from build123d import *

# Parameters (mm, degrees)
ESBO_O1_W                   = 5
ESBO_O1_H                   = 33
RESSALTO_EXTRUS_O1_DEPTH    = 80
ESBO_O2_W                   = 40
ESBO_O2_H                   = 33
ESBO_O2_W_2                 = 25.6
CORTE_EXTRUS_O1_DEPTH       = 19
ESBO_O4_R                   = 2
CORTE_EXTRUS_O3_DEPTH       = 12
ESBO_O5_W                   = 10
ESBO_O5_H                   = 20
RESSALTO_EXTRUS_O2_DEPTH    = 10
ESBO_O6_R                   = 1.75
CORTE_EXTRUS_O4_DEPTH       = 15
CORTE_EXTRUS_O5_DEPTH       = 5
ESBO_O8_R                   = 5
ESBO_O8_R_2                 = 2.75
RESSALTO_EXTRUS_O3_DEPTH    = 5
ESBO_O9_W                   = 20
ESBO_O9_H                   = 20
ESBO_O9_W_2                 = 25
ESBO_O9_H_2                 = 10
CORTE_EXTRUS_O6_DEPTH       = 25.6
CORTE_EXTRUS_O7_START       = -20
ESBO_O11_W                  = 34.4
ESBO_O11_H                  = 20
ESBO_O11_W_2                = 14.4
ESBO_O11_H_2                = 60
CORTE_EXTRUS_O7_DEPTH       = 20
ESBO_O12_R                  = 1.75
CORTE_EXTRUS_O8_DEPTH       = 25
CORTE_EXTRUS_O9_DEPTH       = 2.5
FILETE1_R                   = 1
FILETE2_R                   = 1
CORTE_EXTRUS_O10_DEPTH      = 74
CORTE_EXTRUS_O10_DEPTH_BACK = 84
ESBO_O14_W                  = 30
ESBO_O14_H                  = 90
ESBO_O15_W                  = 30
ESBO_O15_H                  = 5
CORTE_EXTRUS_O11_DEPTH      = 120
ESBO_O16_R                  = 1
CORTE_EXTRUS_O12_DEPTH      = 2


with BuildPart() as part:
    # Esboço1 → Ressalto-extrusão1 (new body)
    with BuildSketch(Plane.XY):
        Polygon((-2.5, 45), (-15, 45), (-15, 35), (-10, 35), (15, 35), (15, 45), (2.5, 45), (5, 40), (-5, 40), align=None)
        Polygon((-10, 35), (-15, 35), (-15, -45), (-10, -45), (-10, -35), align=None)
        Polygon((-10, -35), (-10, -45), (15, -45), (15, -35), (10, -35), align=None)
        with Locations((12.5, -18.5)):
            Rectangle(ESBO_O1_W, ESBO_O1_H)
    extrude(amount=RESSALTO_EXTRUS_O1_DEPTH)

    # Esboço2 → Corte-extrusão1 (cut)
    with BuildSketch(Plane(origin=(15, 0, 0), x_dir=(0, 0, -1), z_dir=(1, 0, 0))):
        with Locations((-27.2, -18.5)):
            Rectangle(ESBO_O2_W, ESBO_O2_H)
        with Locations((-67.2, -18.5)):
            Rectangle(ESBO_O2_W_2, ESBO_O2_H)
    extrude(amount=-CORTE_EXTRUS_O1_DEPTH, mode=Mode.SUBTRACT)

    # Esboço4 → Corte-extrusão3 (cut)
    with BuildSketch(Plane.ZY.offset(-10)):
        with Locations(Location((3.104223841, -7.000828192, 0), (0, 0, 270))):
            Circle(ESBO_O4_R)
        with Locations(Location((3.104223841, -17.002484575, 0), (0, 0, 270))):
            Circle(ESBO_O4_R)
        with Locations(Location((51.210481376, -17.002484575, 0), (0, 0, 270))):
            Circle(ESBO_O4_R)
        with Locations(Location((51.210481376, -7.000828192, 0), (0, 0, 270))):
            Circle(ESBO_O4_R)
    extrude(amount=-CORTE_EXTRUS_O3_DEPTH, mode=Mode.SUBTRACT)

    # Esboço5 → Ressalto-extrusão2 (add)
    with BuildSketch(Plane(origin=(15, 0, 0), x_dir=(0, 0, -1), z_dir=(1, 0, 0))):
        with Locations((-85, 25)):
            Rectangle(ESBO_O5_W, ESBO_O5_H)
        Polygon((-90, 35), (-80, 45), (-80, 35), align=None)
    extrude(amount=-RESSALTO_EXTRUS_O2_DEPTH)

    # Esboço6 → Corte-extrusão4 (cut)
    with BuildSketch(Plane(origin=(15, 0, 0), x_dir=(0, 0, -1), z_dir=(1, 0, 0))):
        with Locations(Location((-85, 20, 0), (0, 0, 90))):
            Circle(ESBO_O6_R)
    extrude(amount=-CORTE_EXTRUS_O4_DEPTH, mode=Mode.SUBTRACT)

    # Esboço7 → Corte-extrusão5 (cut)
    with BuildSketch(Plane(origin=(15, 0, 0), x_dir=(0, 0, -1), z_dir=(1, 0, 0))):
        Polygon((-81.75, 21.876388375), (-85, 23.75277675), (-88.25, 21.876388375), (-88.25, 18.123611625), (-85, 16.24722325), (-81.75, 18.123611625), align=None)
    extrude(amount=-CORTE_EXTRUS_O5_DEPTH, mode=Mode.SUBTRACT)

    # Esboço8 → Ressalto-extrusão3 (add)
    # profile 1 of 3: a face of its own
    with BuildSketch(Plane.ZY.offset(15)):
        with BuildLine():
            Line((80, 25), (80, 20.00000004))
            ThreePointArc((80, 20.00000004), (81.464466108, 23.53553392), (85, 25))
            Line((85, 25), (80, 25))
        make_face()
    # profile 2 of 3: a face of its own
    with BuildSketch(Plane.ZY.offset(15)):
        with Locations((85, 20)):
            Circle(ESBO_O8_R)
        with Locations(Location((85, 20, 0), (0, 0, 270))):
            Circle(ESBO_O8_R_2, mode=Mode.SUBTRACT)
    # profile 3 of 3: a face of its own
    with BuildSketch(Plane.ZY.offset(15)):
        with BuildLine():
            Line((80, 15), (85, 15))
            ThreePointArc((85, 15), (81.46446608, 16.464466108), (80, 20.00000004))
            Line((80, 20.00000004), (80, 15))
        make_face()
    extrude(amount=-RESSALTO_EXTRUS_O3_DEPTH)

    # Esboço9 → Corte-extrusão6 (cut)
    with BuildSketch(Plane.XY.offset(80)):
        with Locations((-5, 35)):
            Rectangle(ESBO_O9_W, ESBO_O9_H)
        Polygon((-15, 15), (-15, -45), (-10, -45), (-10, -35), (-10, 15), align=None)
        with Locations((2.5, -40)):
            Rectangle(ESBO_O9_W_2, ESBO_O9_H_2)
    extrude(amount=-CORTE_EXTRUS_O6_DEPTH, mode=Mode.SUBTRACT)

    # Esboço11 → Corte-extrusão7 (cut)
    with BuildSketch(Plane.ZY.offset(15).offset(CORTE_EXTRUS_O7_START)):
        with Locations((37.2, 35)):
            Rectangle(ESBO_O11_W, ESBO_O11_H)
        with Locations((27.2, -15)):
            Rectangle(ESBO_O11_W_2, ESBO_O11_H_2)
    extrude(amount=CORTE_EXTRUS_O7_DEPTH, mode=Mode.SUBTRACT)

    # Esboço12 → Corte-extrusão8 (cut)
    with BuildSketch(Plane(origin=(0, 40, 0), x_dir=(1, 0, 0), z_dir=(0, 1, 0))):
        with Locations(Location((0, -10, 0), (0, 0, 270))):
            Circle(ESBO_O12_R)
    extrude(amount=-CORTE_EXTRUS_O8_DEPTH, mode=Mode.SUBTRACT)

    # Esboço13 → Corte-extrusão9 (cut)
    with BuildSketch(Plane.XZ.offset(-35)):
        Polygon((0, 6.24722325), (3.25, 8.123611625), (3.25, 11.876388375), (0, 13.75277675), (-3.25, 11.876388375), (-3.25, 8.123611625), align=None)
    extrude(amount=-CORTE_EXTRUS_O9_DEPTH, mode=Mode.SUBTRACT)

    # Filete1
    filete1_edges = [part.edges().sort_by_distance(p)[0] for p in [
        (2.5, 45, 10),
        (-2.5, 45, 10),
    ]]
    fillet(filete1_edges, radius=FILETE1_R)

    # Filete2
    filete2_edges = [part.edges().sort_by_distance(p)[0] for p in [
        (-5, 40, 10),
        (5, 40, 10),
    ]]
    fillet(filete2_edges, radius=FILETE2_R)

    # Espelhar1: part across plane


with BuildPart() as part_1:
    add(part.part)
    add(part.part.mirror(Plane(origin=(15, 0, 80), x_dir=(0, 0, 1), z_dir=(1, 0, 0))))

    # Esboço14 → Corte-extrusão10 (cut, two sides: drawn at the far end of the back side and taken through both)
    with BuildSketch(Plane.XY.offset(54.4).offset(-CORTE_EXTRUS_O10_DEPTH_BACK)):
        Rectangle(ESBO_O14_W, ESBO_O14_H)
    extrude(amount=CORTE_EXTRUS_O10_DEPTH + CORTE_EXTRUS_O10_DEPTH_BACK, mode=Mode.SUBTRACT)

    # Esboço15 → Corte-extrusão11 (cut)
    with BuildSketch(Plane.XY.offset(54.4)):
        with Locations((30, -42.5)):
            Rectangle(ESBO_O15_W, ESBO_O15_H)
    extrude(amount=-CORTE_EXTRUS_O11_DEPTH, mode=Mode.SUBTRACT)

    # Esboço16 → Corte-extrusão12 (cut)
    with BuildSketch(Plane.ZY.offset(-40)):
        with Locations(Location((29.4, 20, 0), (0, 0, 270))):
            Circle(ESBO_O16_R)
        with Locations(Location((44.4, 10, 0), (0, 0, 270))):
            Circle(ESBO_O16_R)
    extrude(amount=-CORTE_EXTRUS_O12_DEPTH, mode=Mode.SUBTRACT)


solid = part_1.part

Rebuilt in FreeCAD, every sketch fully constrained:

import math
import FreeCAD as App
import Part
import Sketcher
from FreeCAD import Vector
Q = App.Units.Quantity


def edges_at(feature, points):
    """Names of the edges that pass closest to the given points."""
    edges = feature.Shape.Edges
    near = lambda p: min(range(len(edges)), key=lambda i: edges[i].distToShape(Part.Vertex(*p))[0])
    return sorted({f"Edge{near(p) + 1}" for p in points})

doc = App.newDocument("Part")
params = doc.addObject("Spreadsheet::Sheet", "Params")
for row, (alias, value) in enumerate([
    ("sketch1_width", "30 mm"),
    ("sketch1_width2", "5 mm"),
    ("sketch1_width3", "10 mm"),
    ("sketch1_height", "90 mm"),
    ("sketch1_height2", "43 mm"),
    ("pad1_length", "80 mm"),
    ("sketch2_width", "33 mm"),
    ("sketch2_height", "40 mm"),
    ("sketch2_height2", "25.6 mm"),
    ("pocket1_length", "19 mm"),
    ("sketch3_diameter", "4 mm"),
    ("pocket2_length", "12 mm"),
    ("sketch4_width", "20 mm"),
    ("sketch4_width2", "30 mm"),
    ("sketch4_height", "10 mm"),
    ("pad2_length", "10 mm"),
    ("sketch5_diameter", "3.5 mm"),
    ("pocket3_length", "15 mm"),
    ("pocket4_length", "5 mm"),
    ("sketch7_radius", "5 mm"),
    ("sketch7_diameter", "5.5 mm"),
    ("sketch7_height", "5 mm"),
    ("pad3_length", "5 mm"),
    ("sketch8_width", "20 mm"),
    ("sketch8_width2", "30 mm"),
    ("sketch8_width3", "25 mm"),
    ("sketch8_height", "60 mm"),
    ("sketch8_height2", "10 mm"),
    ("pocket5_length", "25.6 mm"),
    ("sketch9_width", "20 mm"),
    ("sketch9_width2", "60 mm"),
    ("sketch9_height", "34.4 mm"),
    ("sketch9_height2", "14.4 mm"),
    ("pocket6_length", "20 mm"),
    ("sketch10_diameter", "3.5 mm"),
    ("pocket7_length", "25 mm"),
    ("pocket8_length", "2.5 mm"),
    ("fillet_radius", "1 mm"),
    ("fillet2_radius", "1 mm"),
    ("sketch12_width", "30 mm"),
    ("sketch12_height", "90 mm"),
    ("sketch13_width", "30 mm"),
    ("sketch13_height", "5 mm"),
    ("pocket10_length", "120 mm"),
    ("sketch14_diameter", "2 mm"),
    ("pocket11_length", "2 mm"),
], start=1):
    params.set(f"A{row}", alias)
    params.set(f"B{row}", "=" + value)
    params.setAlias(f"B{row}", alias)

body = doc.addObject("PartDesign::Body", "Body")

sketch1 = body.newObject("Sketcher::SketchObject", "Sketch")
sketch1.AttachmentSupport = (doc.getObject("XY_Plane"), [""])
sketch1.MapMode = "FlatFace"
sketch1.addGeometry(Part.LineSegment(Vector(-2, 45, 0), Vector(-15, 45, 0)), False)
sketch1.addGeometry(Part.LineSegment(Vector(-15, 45, 0), Vector(-15, -45, 0)), False)
sketch1.addGeometry(Part.LineSegment(Vector(-15, -45, 0), Vector(15, -45, 0)), False)
sketch1.addGeometry(Part.LineSegment(Vector(15, -45, 0), Vector(15, -2, 0)), False)
sketch1.addGeometry(Part.LineSegment(Vector(15, -2, 0), Vector(10, -2, 0)), False)
sketch1.addGeometry(Part.LineSegment(Vector(10, -2, 0), Vector(10, -35, 0)), False)
sketch1.addGeometry(Part.LineSegment(Vector(10, -35, 0), Vector(-10, -35, 0)), False)
sketch1.addGeometry(Part.LineSegment(Vector(-10, -35, 0), Vector(-10, 35, 0)), False)
sketch1.addGeometry(Part.LineSegment(Vector(-10, 35, 0), Vector(15, 35, 0)), False)
sketch1.addGeometry(Part.LineSegment(Vector(15, 35, 0), Vector(15, 45, 0)), False)
sketch1.addGeometry(Part.LineSegment(Vector(15, 45, 0), Vector(2, 45, 0)), False)
sketch1.addGeometry(Part.LineSegment(Vector(2, 45, 0), Vector(5, 40, 0)), False)
sketch1.addGeometry(Part.LineSegment(Vector(5, 40, 0), Vector(-5, 40, 0)), False)
sketch1.addGeometry(Part.LineSegment(Vector(-5, 40, 0), Vector(-2, 45, 0)), False)
sketch1.addConstraint(Sketcher.Constraint("Coincident", 0, 2, 1, 1))
sketch1.addConstraint(Sketcher.Constraint("Coincident", 1, 2, 2, 1))
sketch1.addConstraint(Sketcher.Constraint("Coincident", 2, 2, 3, 1))
sketch1.addConstraint(Sketcher.Constraint("Coincident", 3, 2, 4, 1))
sketch1.addConstraint(Sketcher.Constraint("Coincident", 4, 2, 5, 1))
sketch1.addConstraint(Sketcher.Constraint("Coincident", 5, 2, 6, 1))
sketch1.addConstraint(Sketcher.Constraint("Coincident", 6, 2, 7, 1))
sketch1.addConstraint(Sketcher.Constraint("Coincident", 7, 2, 8, 1))
sketch1.addConstraint(Sketcher.Constraint("Coincident", 8, 2, 9, 1))
sketch1.addConstraint(Sketcher.Constraint("Coincident", 9, 2, 10, 1))
sketch1.addConstraint(Sketcher.Constraint("Coincident", 10, 2, 11, 1))
sketch1.addConstraint(Sketcher.Constraint("Coincident", 11, 2, 12, 1))
sketch1.addConstraint(Sketcher.Constraint("Coincident", 12, 2, 13, 1))
sketch1.addConstraint(Sketcher.Constraint("Coincident", 13, 2, 0, 1))
sketch1.addConstraint(Sketcher.Constraint("Horizontal", 0))
sketch1.addConstraint(Sketcher.Constraint("Vertical", 1))
sketch1.addConstraint(Sketcher.Constraint("Horizontal", 2))
sketch1.addConstraint(Sketcher.Constraint("Vertical", 3))
sketch1.addConstraint(Sketcher.Constraint("Horizontal", 4))
sketch1.addConstraint(Sketcher.Constraint("Vertical", 5))
sketch1.addConstraint(Sketcher.Constraint("Horizontal", 6))
sketch1.addConstraint(Sketcher.Constraint("Vertical", 7))
sketch1.addConstraint(Sketcher.Constraint("Horizontal", 8))
sketch1.addConstraint(Sketcher.Constraint("Vertical", 9))
sketch1.addConstraint(Sketcher.Constraint("Horizontal", 10))
sketch1.addConstraint(Sketcher.Constraint("Horizontal", 12))
sketch1.addConstraint(Sketcher.Constraint("Symmetric", 0, 2, 2, 2, -1, 1))
sketch1.addConstraint(Sketcher.Constraint("Symmetric", 5, 2, 7, 2, -1, 1))
sketch1.addConstraint(Sketcher.Constraint("Symmetric", 1, 2, 9, 2, -1, 1))
sketch1.addConstraint(Sketcher.Constraint("Equal", 0, 10))
sketch1.addConstraint(Sketcher.Constraint("Equal", 12, 9))
sketch1.addConstraint(Sketcher.Constraint("Equal", 11, 13))
sketch1.addConstraint(Sketcher.Constraint("DistanceX", 2, 1, 2, 2, Q("30 mm")))
sketch1.addConstraint(Sketcher.Constraint("DistanceX", 4, 2, 4, 1, Q("5 mm")))
sketch1.addConstraint(Sketcher.Constraint("DistanceX", 12, 2, 12, 1, Q("10 mm")))
sketch1.addConstraint(Sketcher.Constraint("DistanceY", 1, 2, 1, 1, Q("90 mm")))
sketch1.addConstraint(Sketcher.Constraint("DistanceY", 3, 1, 3, 2, Q("43 mm")))
sketch1.addConstraint(Sketcher.Constraint("DistanceX", 0, 2, 0, 1, Q("12.5 mm")))
sketch1.addConstraint(Sketcher.Constraint("DistanceY", -1, 1, 11, 2, Q("40 mm")))
sketch1.setExpression("Constraints[32]", "Params.sketch1_width")
sketch1.setExpression("Constraints[33]", "Params.sketch1_width2")
sketch1.setExpression("Constraints[34]", "Params.sketch1_width3")
sketch1.setExpression("Constraints[35]", "Params.sketch1_height")
sketch1.setExpression("Constraints[36]", "Params.sketch1_height2")
pad1 = body.newObject("PartDesign::Pad", "Pad")
pad1.Profile = sketch1
pad1.setExpression("Length", "Params.pad1_length")

sketch2 = body.newObject("Sketcher::SketchObject", "Sketch001")
sketch2.AttachmentSupport = (doc.getObject("YZ_Plane"), [""])
sketch2.MapMode = "FlatFace"
sketch2.AttachmentOffset = App.Placement(Vector(0, 0, 15), App.Rotation())
sketch2.addGeometry(Part.LineSegment(Vector(-2, 47, 0), Vector(-35, 47, 0)), False)
sketch2.addGeometry(Part.LineSegment(Vector(-35, 47, 0), Vector(-35, 7, 0)), False)
sketch2.addGeometry(Part.LineSegment(Vector(-35, 7, 0), Vector(-2, 7, 0)), False)
sketch2.addGeometry(Part.LineSegment(Vector(-2, 7, 0), Vector(-2, 47, 0)), False)
sketch2.addGeometry(Part.LineSegment(Vector(-2, 80, 0), Vector(-35, 80, 0)), False)
sketch2.addGeometry(Part.LineSegment(Vector(-35, 80, 0), Vector(-35, 54, 0)), False)
sketch2.addGeometry(Part.LineSegment(Vector(-35, 54, 0), Vector(-2, 54, 0)), False)
sketch2.addGeometry(Part.LineSegment(Vector(-2, 54, 0), Vector(-2, 80, 0)), False)
sketch2.addConstraint(Sketcher.Constraint("Coincident", 0, 2, 1, 1))
sketch2.addConstraint(Sketcher.Constraint("Coincident", 1, 2, 2, 1))
sketch2.addConstraint(Sketcher.Constraint("Coincident", 2, 2, 3, 1))
sketch2.addConstraint(Sketcher.Constraint("Coincident", 3, 2, 0, 1))
sketch2.addConstraint(Sketcher.Constraint("Coincident", 4, 2, 5, 1))
sketch2.addConstraint(Sketcher.Constraint("Coincident", 5, 2, 6, 1))
sketch2.addConstraint(Sketcher.Constraint("Coincident", 6, 2, 7, 1))
sketch2.addConstraint(Sketcher.Constraint("Coincident", 7, 2, 4, 1))
sketch2.addConstraint(Sketcher.Constraint("Horizontal", 0))
sketch2.addConstraint(Sketcher.Constraint("Vertical", 1))
sketch2.addConstraint(Sketcher.Constraint("Horizontal", 2))
sketch2.addConstraint(Sketcher.Constraint("Vertical", 3))
sketch2.addConstraint(Sketcher.Constraint("Horizontal", 4))
sketch2.addConstraint(Sketcher.Constraint("Vertical", 5))
sketch2.addConstraint(Sketcher.Constraint("Horizontal", 6))
sketch2.addConstraint(Sketcher.Constraint("Vertical", 7))
sketch2.addConstraint(Sketcher.Constraint("Vertical", 1, 2, 4, 2))
sketch2.addConstraint(Sketcher.Constraint("Vertical", 3, 2, 6, 2))
sketch2.addConstraint(Sketcher.Constraint("DistanceX", 0, 2, 0, 1, Q("33 mm")))
sketch2.addConstraint(Sketcher.Constraint("DistanceY", 1, 2, 1, 1, Q("40 mm")))
sketch2.addConstraint(Sketcher.Constraint("DistanceY", 5, 2, 5, 1, Q("25.6 mm")))
sketch2.addConstraint(Sketcher.Constraint("DistanceX", 0, 2, -1, 1, Q("35 mm")))
sketch2.addConstraint(Sketcher.Constraint("DistanceY", -1, 1, 4, 2, Q("80 mm")))
sketch2.addConstraint(Sketcher.Constraint("DistanceY", -1, 1, 0, 2, Q("47.2 mm")))
sketch2.setExpression("Constraints[18]", "Params.sketch2_width")
sketch2.setExpression("Constraints[19]", "Params.sketch2_height")
sketch2.setExpression("Constraints[20]", "Params.sketch2_height2")
pocket1 = body.newObject("PartDesign::Pocket", "Pocket")
pocket1.Profile = sketch2
pocket1.setExpression("Length", "Params.pocket1_length")

sketch3 = body.newObject("Sketcher::SketchObject", "Sketch002")
sketch3.AttachmentSupport = (doc.getObject("YZ_Plane"), [""])
sketch3.MapMode = "FlatFace"
sketch3.AttachmentOffset = App.Placement(Vector(0, 0, 10), App.Rotation())
sketch3.addGeometry(Part.Circle(Vector(-7, 3.1, 0), Vector(0, 0, 1), 2), False)
sketch3.addGeometry(Part.Circle(Vector(-17, 3.1, 0), Vector(0, 0, 1), 2), False)
sketch3.addGeometry(Part.Circle(Vector(-17, 51.2, 0), Vector(0, 0, 1), 2), False)
sketch3.addGeometry(Part.Circle(Vector(-7, 51.2, 0), Vector(0, 0, 1), 2), False)
sketch3.addConstraint(Sketcher.Constraint("Equal", 0, 1))
sketch3.addConstraint(Sketcher.Constraint("Equal", 1, 2))
sketch3.addConstraint(Sketcher.Constraint("Equal", 2, 3))
sketch3.addConstraint(Sketcher.Constraint("Horizontal", 0, 3, 1, 3))
sketch3.addConstraint(Sketcher.Constraint("Horizontal", 2, 3, 3, 3))
sketch3.addConstraint(Sketcher.Constraint("Vertical", 1, 3, 2, 3))
sketch3.addConstraint(Sketcher.Constraint("Vertical", 0, 3, 3, 3))
sketch3.addConstraint(Sketcher.Constraint("Diameter", 0, Q("4 mm")))
sketch3.addConstraint(Sketcher.Constraint("DistanceX", 0, 3, -1, 1, Q("7.000828 mm")))
sketch3.addConstraint(Sketcher.Constraint("DistanceY", -1, 1, 2, 3, Q("51.210481 mm")))
sketch3.addConstraint(Sketcher.Constraint("DistanceY", -1, 1, 0, 3, Q("3.104224 mm")))
sketch3.addConstraint(Sketcher.Constraint("DistanceX", 1, 3, -1, 1, Q("17.002485 mm")))
sketch3.setExpression("Constraints[7]", "Params.sketch3_diameter")
pocket2 = body.newObject("PartDesign::Pocket", "Pocket001")
pocket2.Profile = sketch3
pocket2.setExpression("Length", "Params.pocket2_length")
pocket2.Reversed = True

sketch4 = body.newObject("Sketcher::SketchObject", "Sketch003")
sketch4.AttachmentSupport = (doc.getObject("YZ_Plane"), [""])
sketch4.MapMode = "FlatFace"
sketch4.AttachmentOffset = App.Placement(Vector(0, 0, 15), App.Rotation())
sketch4.addGeometry(Part.LineSegment(Vector(35, 90, 0), Vector(15, 90, 0)), False)
sketch4.addGeometry(Part.LineSegment(Vector(15, 90, 0), Vector(15, 80, 0)), False)
sketch4.addGeometry(Part.LineSegment(Vector(15, 80, 0), Vector(45, 80, 0)), False)
sketch4.addGeometry(Part.LineSegment(Vector(45, 80, 0), Vector(35, 90, 0)), False)
sketch4.addConstraint(Sketcher.Constraint("Coincident", 0, 2, 1, 1))
sketch4.addConstraint(Sketcher.Constraint("Coincident", 1, 2, 2, 1))
sketch4.addConstraint(Sketcher.Constraint("Coincident", 2, 2, 3, 1))
sketch4.addConstraint(Sketcher.Constraint("Coincident", 3, 2, 0, 1))
sketch4.addConstraint(Sketcher.Constraint("Horizontal", 0))
sketch4.addConstraint(Sketcher.Constraint("Vertical", 1))
sketch4.addConstraint(Sketcher.Constraint("Horizontal", 2))
sketch4.addConstraint(Sketcher.Constraint("DistanceX", 0, 2, 0, 1, Q("20 mm")))
sketch4.addConstraint(Sketcher.Constraint("DistanceX", 2, 1, 2, 2, Q("30 mm")))
sketch4.addConstraint(Sketcher.Constraint("DistanceY", 1, 2, 1, 1, Q("10 mm")))
sketch4.addConstraint(Sketcher.Constraint("DistanceX", -1, 1, 0, 2, Q("15 mm")))
sketch4.addConstraint(Sketcher.Constraint("DistanceY", -1, 1, 0, 2, Q("90 mm")))
sketch4.setExpression("Constraints[7]", "Params.sketch4_width")
sketch4.setExpression("Constraints[8]", "Params.sketch4_width2")
sketch4.setExpression("Constraints[9]", "Params.sketch4_height")
pad2 = body.newObject("PartDesign::Pad", "Pad001")
pad2.Profile = sketch4
pad2.setExpression("Length", "Params.pad2_length")
pad2.Reversed = True

sketch5 = body.newObject("Sketcher::SketchObject", "Sketch004")
sketch5.AttachmentSupport = (doc.getObject("YZ_Plane"), [""])
sketch5.MapMode = "FlatFace"
sketch5.AttachmentOffset = App.Placement(Vector(0, 0, 15), App.Rotation())
sketch5.addGeometry(Part.Circle(Vector(20, 85, 0), Vector(0, 0, 1), 1.8), False)
sketch5.addConstraint(Sketcher.Constraint("Diameter", 0, Q("3.5 mm")))
sketch5.addConstraint(Sketcher.Constraint("DistanceX", -1, 1, 0, 3, Q("20 mm")))
sketch5.addConstraint(Sketcher.Constraint("DistanceY", -1, 1, 0, 3, Q("85 mm")))
sketch5.setExpression("Constraints[0]", "Params.sketch5_diameter")
pocket3 = body.newObject("PartDesign::Pocket", "Pocket002")
pocket3.Profile = sketch5
pocket3.setExpression("Length", "Params.pocket3_length")

sketch6 = body.newObject("Sketcher::SketchObject", "Sketch005")
sketch6.AttachmentSupport = (doc.getObject("YZ_Plane"), [""])
sketch6.MapMode = "FlatFace"
sketch6.AttachmentOffset = App.Placement(Vector(0, 0, 15), App.Rotation())
sketch6.addGeometry(Part.LineSegment(Vector(21.9, 81.8, 0), Vector(23.8, 85, 0)), False)
sketch6.addGeometry(Part.LineSegment(Vector(23.8, 85, 0), Vector(21.9, 88.2, 0)), False)
sketch6.addGeometry(Part.LineSegment(Vector(21.9, 88.2, 0), Vector(18.1, 88.2, 0)), False)
sketch6.addGeometry(Part.LineSegment(Vector(18.1, 88.2, 0), Vector(16.2, 85, 0)), False)
sketch6.addGeometry(Part.LineSegment(Vector(16.2, 85, 0), Vector(18.1, 81.8, 0)), False)
sketch6.addGeometry(Part.LineSegment(Vector(18.1, 81.8, 0), Vector(21.9, 81.8, 0)), False)
sketch6.addConstraint(Sketcher.Constraint("Coincident", 0, 2, 1, 1))
sketch6.addConstraint(Sketcher.Constraint("Coincident", 1, 2, 2, 1))
sketch6.addConstraint(Sketcher.Constraint("Coincident", 2, 2, 3, 1))
sketch6.addConstraint(Sketcher.Constraint("Coincident", 3, 2, 4, 1))
sketch6.addConstraint(Sketcher.Constraint("Coincident", 4, 2, 5, 1))
sketch6.addConstraint(Sketcher.Constraint("Coincident", 5, 2, 0, 1))
sketch6.addConstraint(Sketcher.Constraint("Horizontal", 2))
sketch6.addConstraint(Sketcher.Constraint("Horizontal", 5))
sketch6.addConstraint(Sketcher.Constraint("Parallel", 0, 3))
sketch6.addConstraint(Sketcher.Constraint("Parallel", 1, 4))
sketch6.addConstraint(Sketcher.Constraint("Horizontal", 0, 2, 3, 2))
sketch6.addConstraint(Sketcher.Constraint("Vertical", 2, 2, 4, 2))
sketch6.addConstraint(Sketcher.Constraint("Vertical", 1, 2, 5, 2))
sketch6.addConstraint(Sketcher.Constraint("Angle", 0, Q("60 deg")))
sketch6.addConstraint(Sketcher.Constraint("DistanceY", -1, 1, 0, 2, Q("85 mm")))
sketch6.addConstraint(Sketcher.Constraint("DistanceY", 4, 2, 2, 2, Q("6.5 mm")))
sketch6.addConstraint(Sketcher.Constraint("DistanceX", 2, 2, 2, 1, Q("3.752777 mm")))
sketch6.addConstraint(Sketcher.Constraint("DistanceX", -1, 1, 1, 2, Q("21.876388 mm")))
pocket4 = body.newObject("PartDesign::Pocket", "Pocket003")
pocket4.Profile = sketch6
pocket4.setExpression("Length", "Params.pocket4_length")

sketch7 = body.newObject("Sketcher::SketchObject", "Sketch006")
sketch7.AttachmentSupport = (doc.getObject("YZ_Plane"), [""])
sketch7.MapMode = "FlatFace"
sketch7.AttachmentOffset = App.Placement(Vector(0, 0, -15), App.Rotation())
sketch7.addGeometry(Part.LineSegment(Vector(25, 80, 0), Vector(15, 80, 0)), False)
sketch7.addGeometry(Part.LineSegment(Vector(15, 80, 0), Vector(15, 85, 0)), False)
sketch7.addGeometry(Part.ArcOfCircle(Part.Circle(Vector(20, 85, 0), Vector(0, 0, 1), 5), math.radians(0), math.radians(180)), False)
sketch7.addGeometry(Part.LineSegment(Vector(25, 85, 0), Vector(25, 80, 0)), False)
sketch7.addGeometry(Part.Circle(Vector(20, 85, 0), Vector(0, 0, 1), 2.8), False)
sketch7.addConstraint(Sketcher.Constraint("Coincident", 0, 2, 1, 1))
sketch7.addConstraint(Sketcher.Constraint("Tangent", 1, 2, 2, 2))
sketch7.addConstraint(Sketcher.Constraint("Tangent", 2, 1, 3, 1))
sketch7.addConstraint(Sketcher.Constraint("Coincident", 3, 2, 0, 1))
sketch7.addConstraint(Sketcher.Constraint("Horizontal", 0))
sketch7.addConstraint(Sketcher.Constraint("Vertical", 1))
sketch7.addConstraint(Sketcher.Constraint("Vertical", 3))
sketch7.addConstraint(Sketcher.Constraint("Coincident", 4, 3, 2, 3))
sketch7.addConstraint(Sketcher.Constraint("Radius", 2, Q("5 mm")))
sketch7.addConstraint(Sketcher.Constraint("Diameter", 4, Q("5.5 mm")))
sketch7.addConstraint(Sketcher.Constraint("DistanceY", 1, 1, 1, 2, Q("5 mm")))
sketch7.addConstraint(Sketcher.Constraint("DistanceX", -1, 1, 2, 3, Q("20 mm")))
sketch7.addConstraint(Sketcher.Constraint("DistanceY", -1, 1, 2, 3, Q("85 mm")))
sketch7.setExpression("Constraints[8]", "Params.sketch7_radius")
sketch7.setExpression("Constraints[9]", "Params.sketch7_diameter")
sketch7.setExpression("Constraints[10]", "Params.sketch7_height")
pad3 = body.newObject("PartDesign::Pad", "Pad002")
pad3.Profile = sketch7
pad3.setExpression("Length", "Params.pad3_length")

sketch8 = body.newObject("Sketcher::SketchObject", "Sketch007")
sketch8.AttachmentSupport = (doc.getObject("XY_Plane"), [""])
sketch8.MapMode = "FlatFace"
sketch8.AttachmentOffset = App.Placement(Vector(0, 0, 80), App.Rotation())
sketch8.addGeometry(Part.LineSegment(Vector(-15, 45, 0), Vector(-15, 25, 0)), False)
sketch8.addGeometry(Part.LineSegment(Vector(-15, 25, 0), Vector(5, 25, 0)), False)
sketch8.addGeometry(Part.LineSegment(Vector(5, 25, 0), Vector(5, 45, 0)), False)
sketch8.addGeometry(Part.LineSegment(Vector(5, 45, 0), Vector(-15, 45, 0)), False)
sketch8.addGeometry(Part.LineSegment(Vector(-15, 15, 0), Vector(-15, -45, 0)), False)
sketch8.addGeometry(Part.LineSegment(Vector(-15, -45, 0), Vector(15, -45, 0)), False)
sketch8.addGeometry(Part.LineSegment(Vector(15, -45, 0), Vector(15, -35, 0)), False)
sketch8.addGeometry(Part.LineSegment(Vector(15, -35, 0), Vector(-10, -35, 0)), False)
sketch8.addGeometry(Part.LineSegment(Vector(-10, -35, 0), Vector(-10, 15, 0)), False)
sketch8.addGeometry(Part.LineSegment(Vector(-10, 15, 0), Vector(-15, 15, 0)), False)
sketch8.addConstraint(Sketcher.Constraint("Coincident", 0, 2, 1, 1))
sketch8.addConstraint(Sketcher.Constraint("Coincident", 1, 2, 2, 1))
sketch8.addConstraint(Sketcher.Constraint("Coincident", 2, 2, 3, 1))
sketch8.addConstraint(Sketcher.Constraint("Coincident", 3, 2, 0, 1))
sketch8.addConstraint(Sketcher.Constraint("Coincident", 4, 2, 5, 1))
sketch8.addConstraint(Sketcher.Constraint("Coincident", 5, 2, 6, 1))
sketch8.addConstraint(Sketcher.Constraint("Coincident", 6, 2, 7, 1))
sketch8.addConstraint(Sketcher.Constraint("Coincident", 7, 2, 8, 1))
sketch8.addConstraint(Sketcher.Constraint("Coincident", 8, 2, 9, 1))
sketch8.addConstraint(Sketcher.Constraint("Coincident", 9, 2, 4, 1))
sketch8.addConstraint(Sketcher.Constraint("Vertical", 0))
sketch8.addConstraint(Sketcher.Constraint("Horizontal", 1))
sketch8.addConstraint(Sketcher.Constraint("Vertical", 2))
sketch8.addConstraint(Sketcher.Constraint("Horizontal", 3))
sketch8.addConstraint(Sketcher.Constraint("Vertical", 4))
sketch8.addConstraint(Sketcher.Constraint("Horizontal", 5))
sketch8.addConstraint(Sketcher.Constraint("Vertical", 6))
sketch8.addConstraint(Sketcher.Constraint("Horizontal", 7))
sketch8.addConstraint(Sketcher.Constraint("Vertical", 8))
sketch8.addConstraint(Sketcher.Constraint("Horizontal", 9))
sketch8.addConstraint(Sketcher.Constraint("Symmetric", 3, 2, 5, 2, -1, 1))
sketch8.addConstraint(Sketcher.Constraint("Vertical", 3, 2, 4, 2))
sketch8.addConstraint(Sketcher.Constraint("Equal", 3, 0))
sketch8.addConstraint(Sketcher.Constraint("DistanceX", 1, 1, 1, 2, Q("20 mm")))
sketch8.addConstraint(Sketcher.Constraint("DistanceX", 5, 1, 5, 2, Q("30 mm")))
sketch8.addConstraint(Sketcher.Constraint("DistanceX", 7, 2, 7, 1, Q("25 mm")))
sketch8.addConstraint(Sketcher.Constraint("DistanceY", 4, 2, 4, 1, Q("60 mm")))
sketch8.addConstraint(Sketcher.Constraint("DistanceY", 6, 1, 6, 2, Q("10 mm")))
sketch8.addConstraint(Sketcher.Constraint("DistanceY", -1, 1, 0, 2, Q("25 mm")))
sketch8.setExpression("Constraints[23]", "Params.sketch8_width")
sketch8.setExpression("Constraints[24]", "Params.sketch8_width2")
sketch8.setExpression("Constraints[25]", "Params.sketch8_width3")
sketch8.setExpression("Constraints[26]", "Params.sketch8_height")
sketch8.setExpression("Constraints[27]", "Params.sketch8_height2")
pocket5 = body.newObject("PartDesign::Pocket", "Pocket004")
pocket5.Profile = sketch8
pocket5.setExpression("Length", "Params.pocket5_length")

sketch9 = body.newObject("Sketcher::SketchObject", "Sketch008")
sketch9.AttachmentSupport = (doc.getObject("YZ_Plane"), [""])
sketch9.MapMode = "FlatFace"
sketch9.AttachmentOffset = App.Placement(Vector(0, 0, 5), App.Rotation())
sketch9.addGeometry(Part.LineSegment(Vector(45, 20, 0), Vector(25, 20, 0)), False)
sketch9.addGeometry(Part.LineSegment(Vector(25, 20, 0), Vector(25, 54, 0)), False)
sketch9.addGeometry(Part.LineSegment(Vector(25, 54, 0), Vector(45, 54, 0)), False)
sketch9.addGeometry(Part.LineSegment(Vector(45, 54, 0), Vector(45, 20, 0)), False)
sketch9.addGeometry(Part.LineSegment(Vector(15, 20, 0), Vector(-45, 20, 0)), False)
sketch9.addGeometry(Part.LineSegment(Vector(-45, 20, 0), Vector(-45, 34, 0)), False)
sketch9.addGeometry(Part.LineSegment(Vector(-45, 34, 0), Vector(15, 34, 0)), False)
sketch9.addGeometry(Part.LineSegment(Vector(15, 34, 0), Vector(15, 20, 0)), False)
sketch9.addConstraint(Sketcher.Constraint("Coincident", 0, 2, 1, 1))
sketch9.addConstraint(Sketcher.Constraint("Coincident", 1, 2, 2, 1))
sketch9.addConstraint(Sketcher.Constraint("Coincident", 2, 2, 3, 1))
sketch9.addConstraint(Sketcher.Constraint("Coincident", 3, 2, 0, 1))
sketch9.addConstraint(Sketcher.Constraint("Coincident", 4, 2, 5, 1))
sketch9.addConstraint(Sketcher.Constraint("Coincident", 5, 2, 6, 1))
sketch9.addConstraint(Sketcher.Constraint("Coincident", 6, 2, 7, 1))
sketch9.addConstraint(Sketcher.Constraint("Coincident", 7, 2, 4, 1))
sketch9.addConstraint(Sketcher.Constraint("Horizontal", 0))
sketch9.addConstraint(Sketcher.Constraint("Vertical", 1))
sketch9.addConstraint(Sketcher.Constraint("Horizontal", 2))
sketch9.addConstraint(Sketcher.Constraint("Vertical", 3))
sketch9.addConstraint(Sketcher.Constraint("Horizontal", 4))
sketch9.addConstraint(Sketcher.Constraint("Vertical", 5))
sketch9.addConstraint(Sketcher.Constraint("Horizontal", 6))
sketch9.addConstraint(Sketcher.Constraint("Vertical", 7))
sketch9.addConstraint(Sketcher.Constraint("Symmetric", 3, 2, 4, 2, -2))
sketch9.addConstraint(Sketcher.Constraint("DistanceX", 0, 2, 0, 1, Q("20 mm")))
sketch9.addConstraint(Sketcher.Constraint("DistanceX", 4, 2, 4, 1, Q("60 mm")))
sketch9.addConstraint(Sketcher.Constraint("DistanceY", 1, 1, 1, 2, Q("34.4 mm")))
sketch9.addConstraint(Sketcher.Constraint("DistanceY", 5, 1, 5, 2, Q("14.4 mm")))
sketch9.addConstraint(Sketcher.Constraint("DistanceX", -1, 1, 0, 2, Q("25 mm")))
sketch9.addConstraint(Sketcher.Constraint("DistanceY", -1, 1, 0, 2, Q("20 mm")))
sketch9.setExpression("Constraints[17]", "Params.sketch9_width")
sketch9.setExpression("Constraints[18]", "Params.sketch9_width2")
sketch9.setExpression("Constraints[19]", "Params.sketch9_height")
sketch9.setExpression("Constraints[20]", "Params.sketch9_height2")
pocket6 = body.newObject("PartDesign::Pocket", "Pocket005")
pocket6.Profile = sketch9
pocket6.setExpression("Length", "Params.pocket6_length")

sketch10 = body.newObject("Sketcher::SketchObject", "Sketch009")
sketch10.AttachmentSupport = (doc.getObject("XZ_Plane"), [""])
sketch10.MapMode = "FlatFace"
sketch10.AttachmentOffset = App.Placement(Vector(0, 0, -40), App.Rotation())
sketch10.addGeometry(Part.Circle(Vector(0, 10, 0), Vector(0, 0, 1), 1.8), False)
sketch10.addConstraint(Sketcher.Constraint("PointOnObject", 0, 3, -2))
sketch10.addConstraint(Sketcher.Constraint("Diameter", 0, Q("3.5 mm")))
sketch10.addConstraint(Sketcher.Constraint("DistanceY", -1, 1, 0, 3, Q("10 mm")))
sketch10.setExpression("Constraints[1]", "Params.sketch10_diameter")
pocket7 = body.newObject("PartDesign::Pocket", "Pocket006")
pocket7.Profile = sketch10
pocket7.setExpression("Length", "Params.pocket7_length")
pocket7.Reversed = True

sketch11 = body.newObject("Sketcher::SketchObject", "Sketch010")
sketch11.AttachmentSupport = (doc.getObject("XZ_Plane"), [""])
sketch11.MapMode = "FlatFace"
sketch11.AttachmentOffset = App.Placement(Vector(0, 0, -35), App.Rotation())
sketch11.addGeometry(Part.LineSegment(Vector(0, 6.2, 0), Vector(3.2, 8.1, 0)), False)
sketch11.addGeometry(Part.LineSegment(Vector(3.2, 8.1, 0), Vector(3.2, 11.9, 0)), False)
sketch11.addGeometry(Part.LineSegment(Vector(3.2, 11.9, 0), Vector(0, 13.8, 0)), False)
sketch11.addGeometry(Part.LineSegment(Vector(0, 13.8, 0), Vector(-3.2, 11.9, 0)), False)
sketch11.addGeometry(Part.LineSegment(Vector(-3.2, 11.9, 0), Vector(-3.2, 8.1, 0)), False)
sketch11.addGeometry(Part.LineSegment(Vector(-3.2, 8.1, 0), Vector(0, 6.2, 0)), False)
sketch11.addConstraint(Sketcher.Constraint("Coincident", 0, 2, 1, 1))
sketch11.addConstraint(Sketcher.Constraint("Coincident", 1, 2, 2, 1))
sketch11.addConstraint(Sketcher.Constraint("Coincident", 2, 2, 3, 1))
sketch11.addConstraint(Sketcher.Constraint("Coincident", 3, 2, 4, 1))
sketch11.addConstraint(Sketcher.Constraint("Coincident", 4, 2, 5, 1))
sketch11.addConstraint(Sketcher.Constraint("Coincident", 5, 2, 0, 1))
sketch11.addConstraint(Sketcher.Constraint("Vertical", 1))
sketch11.addConstraint(Sketcher.Constraint("Vertical", 4))
sketch11.addConstraint(Sketcher.Constraint("Symmetric", 1, 2, 3, 2, -2))
sketch11.addConstraint(Sketcher.Constraint("PointOnObject", 2, 2, -2))
sketch11.addConstraint(Sketcher.Constraint("PointOnObject", 5, 2, -2))
sketch11.addConstraint(Sketcher.Constraint("Parallel", 0, 3))
sketch11.addConstraint(Sketcher.Constraint("Parallel", 2, 5))
sketch11.addConstraint(Sketcher.Constraint("Angle", 0, Q("30 deg")))
sketch11.addConstraint(Sketcher.Constraint("DistanceX", 3, 2, 1, 2, Q("6.5 mm")))
sketch11.addConstraint(Sketcher.Constraint("DistanceY", 1, 1, 1, 2, Q("3.752777 mm")))
sketch11.addConstraint(Sketcher.Constraint("DistanceY", -1, 1, 0, 2, Q("8.123612 mm")))
pocket8 = body.newObject("PartDesign::Pocket", "Pocket007")
pocket8.Profile = sketch11
pocket8.setExpression("Length", "Params.pocket8_length")
doc.recompute()

fillet = body.newObject("PartDesign::Fillet", "Fillet")
fillet.Base = (pocket8, edges_at(pocket8, [(2.5, 45, 10), (-2.5, 45, 10)]))
fillet.setExpression("Radius", "Params.fillet_radius")
doc.recompute()

fillet2 = body.newObject("PartDesign::Fillet", "Fillet001")
fillet2.Base = (fillet, edges_at(fillet, [(-5, 40, 10), (5, 40, 10)]))
fillet2.setExpression("Radius", "Params.fillet2_radius")
body2 = doc.addObject("PartDesign::Body", "Body001")
doc.recompute()

body2.BaseFeature = body
doc.recompute()

mirroring = doc.addObject("Part::Mirroring", "Mirroring")
mirroring.Source = body
mirroring.Base = Vector(15, 0, 80)
mirroring.Normal = Vector(1, 0, 0)
body3 = doc.addObject("PartDesign::Body", "Body002")
body3.BaseFeature = mirroring
boolean = body2.newObject("PartDesign::Boolean", "Boolean")
boolean.Type = "Fuse"
boolean.addObjects([body3])
doc.recompute()

sketch12 = body2.newObject("Sketcher::SketchObject", "Sketch011")
sketch12.AttachmentSupport = (doc.getObject("XY_Plane001"), [""])
sketch12.MapMode = "FlatFace"
sketch12.AttachmentOffset = App.Placement(Vector(0, 0, 54.4), App.Rotation())
sketch12.addGeometry(Part.LineSegment(Vector(-15, 45, 0), Vector(-15, -45, 0)), False)
sketch12.addGeometry(Part.LineSegment(Vector(-15, -45, 0), Vector(15, -45, 0)), False)
sketch12.addGeometry(Part.LineSegment(Vector(15, -45, 0), Vector(15, 45, 0)), False)
sketch12.addGeometry(Part.LineSegment(Vector(15, 45, 0), Vector(-15, 45, 0)), False)
sketch12.addConstraint(Sketcher.Constraint("Coincident", 0, 2, 1, 1))
sketch12.addConstraint(Sketcher.Constraint("Coincident", 1, 2, 2, 1))
sketch12.addConstraint(Sketcher.Constraint("Coincident", 2, 2, 3, 1))
sketch12.addConstraint(Sketcher.Constraint("Coincident", 3, 2, 0, 1))
sketch12.addConstraint(Sketcher.Constraint("Vertical", 0))
sketch12.addConstraint(Sketcher.Constraint("Horizontal", 1))
sketch12.addConstraint(Sketcher.Constraint("Vertical", 2))
sketch12.addConstraint(Sketcher.Constraint("Horizontal", 3))
sketch12.addConstraint(Sketcher.Constraint("Symmetric", 0, 2, 2, 2, -1, 1))
sketch12.addConstraint(Sketcher.Constraint("DistanceX", 1, 1, 1, 2, Q("30 mm")))
sketch12.addConstraint(Sketcher.Constraint("DistanceY", 0, 2, 0, 1, Q("90 mm")))
sketch12.setExpression("Constraints[9]", "Params.sketch12_width")
sketch12.setExpression("Constraints[10]", "Params.sketch12_height")
pocket9 = body2.newObject("PartDesign::Pocket", "Pocket008")
pocket9.Profile = sketch12
pocket9.Type = "ThroughAll"
pocket9.Midplane = True

sketch13 = body2.newObject("Sketcher::SketchObject", "Sketch012")
sketch13.AttachmentSupport = (doc.getObject("XY_Plane001"), [""])
sketch13.MapMode = "FlatFace"
sketch13.AttachmentOffset = App.Placement(Vector(0, 0, 54.4), App.Rotation())
sketch13.addGeometry(Part.LineSegment(Vector(15, -40, 0), Vector(15, -45, 0)), False)
sketch13.addGeometry(Part.LineSegment(Vector(15, -45, 0), Vector(45, -45, 0)), False)
sketch13.addGeometry(Part.LineSegment(Vector(45, -45, 0), Vector(45, -40, 0)), False)
sketch13.addGeometry(Part.LineSegment(Vector(45, -40, 0), Vector(15, -40, 0)), False)
sketch13.addConstraint(Sketcher.Constraint("Coincident", 0, 2, 1, 1))
sketch13.addConstraint(Sketcher.Constraint("Coincident", 1, 2, 2, 1))
sketch13.addConstraint(Sketcher.Constraint("Coincident", 2, 2, 3, 1))
sketch13.addConstraint(Sketcher.Constraint("Coincident", 3, 2, 0, 1))
sketch13.addConstraint(Sketcher.Constraint("Vertical", 0))
sketch13.addConstraint(Sketcher.Constraint("Horizontal", 1))
sketch13.addConstraint(Sketcher.Constraint("Vertical", 2))
sketch13.addConstraint(Sketcher.Constraint("Horizontal", 3))
sketch13.addConstraint(Sketcher.Constraint("DistanceX", 1, 1, 1, 2, Q("30 mm")))
sketch13.addConstraint(Sketcher.Constraint("DistanceY", 0, 2, 0, 1, Q("5 mm")))
sketch13.addConstraint(Sketcher.Constraint("DistanceX", -1, 1, 0, 2, Q("15 mm")))
sketch13.addConstraint(Sketcher.Constraint("DistanceY", 0, 2, -1, 1, Q("45 mm")))
sketch13.setExpression("Constraints[8]", "Params.sketch13_width")
sketch13.setExpression("Constraints[9]", "Params.sketch13_height")
pocket10 = body2.newObject("PartDesign::Pocket", "Pocket009")
pocket10.Profile = sketch13
pocket10.setExpression("Length", "Params.pocket10_length")

sketch14 = body2.newObject("Sketcher::SketchObject", "Sketch013")
sketch14.AttachmentSupport = (doc.getObject("YZ_Plane001"), [""])
sketch14.MapMode = "FlatFace"
sketch14.AttachmentOffset = App.Placement(Vector(0, 0, 40), App.Rotation())
sketch14.addGeometry(Part.Circle(Vector(20, 29.4, 0), Vector(0, 0, 1), 1), False)
sketch14.addGeometry(Part.Circle(Vector(10, 44.4, 0), Vector(0, 0, 1), 1), False)
sketch14.addConstraint(Sketcher.Constraint("Equal", 0, 1))
sketch14.addConstraint(Sketcher.Constraint("Diameter", 0, Q("2 mm")))
sketch14.addConstraint(Sketcher.Constraint("DistanceX", -1, 1, 0, 3, Q("20 mm")))
sketch14.addConstraint(Sketcher.Constraint("DistanceX", -1, 1, 1, 3, Q("10 mm")))
sketch14.addConstraint(Sketcher.Constraint("DistanceY", 0, 3, 1, 3, Q("15 mm")))
sketch14.addConstraint(Sketcher.Constraint("DistanceY", -1, 1, 0, 3, Q("29.4 mm")))
sketch14.setExpression("Constraints[1]", "Params.sketch14_diameter")
pocket11 = body2.newObject("PartDesign::Pocket", "Pocket010")
pocket11.Profile = sketch14
pocket11.setExpression("Length", "Params.pocket11_length")
pocket11.Reversed = True
mirroring.Visibility = False

doc.recompute()
